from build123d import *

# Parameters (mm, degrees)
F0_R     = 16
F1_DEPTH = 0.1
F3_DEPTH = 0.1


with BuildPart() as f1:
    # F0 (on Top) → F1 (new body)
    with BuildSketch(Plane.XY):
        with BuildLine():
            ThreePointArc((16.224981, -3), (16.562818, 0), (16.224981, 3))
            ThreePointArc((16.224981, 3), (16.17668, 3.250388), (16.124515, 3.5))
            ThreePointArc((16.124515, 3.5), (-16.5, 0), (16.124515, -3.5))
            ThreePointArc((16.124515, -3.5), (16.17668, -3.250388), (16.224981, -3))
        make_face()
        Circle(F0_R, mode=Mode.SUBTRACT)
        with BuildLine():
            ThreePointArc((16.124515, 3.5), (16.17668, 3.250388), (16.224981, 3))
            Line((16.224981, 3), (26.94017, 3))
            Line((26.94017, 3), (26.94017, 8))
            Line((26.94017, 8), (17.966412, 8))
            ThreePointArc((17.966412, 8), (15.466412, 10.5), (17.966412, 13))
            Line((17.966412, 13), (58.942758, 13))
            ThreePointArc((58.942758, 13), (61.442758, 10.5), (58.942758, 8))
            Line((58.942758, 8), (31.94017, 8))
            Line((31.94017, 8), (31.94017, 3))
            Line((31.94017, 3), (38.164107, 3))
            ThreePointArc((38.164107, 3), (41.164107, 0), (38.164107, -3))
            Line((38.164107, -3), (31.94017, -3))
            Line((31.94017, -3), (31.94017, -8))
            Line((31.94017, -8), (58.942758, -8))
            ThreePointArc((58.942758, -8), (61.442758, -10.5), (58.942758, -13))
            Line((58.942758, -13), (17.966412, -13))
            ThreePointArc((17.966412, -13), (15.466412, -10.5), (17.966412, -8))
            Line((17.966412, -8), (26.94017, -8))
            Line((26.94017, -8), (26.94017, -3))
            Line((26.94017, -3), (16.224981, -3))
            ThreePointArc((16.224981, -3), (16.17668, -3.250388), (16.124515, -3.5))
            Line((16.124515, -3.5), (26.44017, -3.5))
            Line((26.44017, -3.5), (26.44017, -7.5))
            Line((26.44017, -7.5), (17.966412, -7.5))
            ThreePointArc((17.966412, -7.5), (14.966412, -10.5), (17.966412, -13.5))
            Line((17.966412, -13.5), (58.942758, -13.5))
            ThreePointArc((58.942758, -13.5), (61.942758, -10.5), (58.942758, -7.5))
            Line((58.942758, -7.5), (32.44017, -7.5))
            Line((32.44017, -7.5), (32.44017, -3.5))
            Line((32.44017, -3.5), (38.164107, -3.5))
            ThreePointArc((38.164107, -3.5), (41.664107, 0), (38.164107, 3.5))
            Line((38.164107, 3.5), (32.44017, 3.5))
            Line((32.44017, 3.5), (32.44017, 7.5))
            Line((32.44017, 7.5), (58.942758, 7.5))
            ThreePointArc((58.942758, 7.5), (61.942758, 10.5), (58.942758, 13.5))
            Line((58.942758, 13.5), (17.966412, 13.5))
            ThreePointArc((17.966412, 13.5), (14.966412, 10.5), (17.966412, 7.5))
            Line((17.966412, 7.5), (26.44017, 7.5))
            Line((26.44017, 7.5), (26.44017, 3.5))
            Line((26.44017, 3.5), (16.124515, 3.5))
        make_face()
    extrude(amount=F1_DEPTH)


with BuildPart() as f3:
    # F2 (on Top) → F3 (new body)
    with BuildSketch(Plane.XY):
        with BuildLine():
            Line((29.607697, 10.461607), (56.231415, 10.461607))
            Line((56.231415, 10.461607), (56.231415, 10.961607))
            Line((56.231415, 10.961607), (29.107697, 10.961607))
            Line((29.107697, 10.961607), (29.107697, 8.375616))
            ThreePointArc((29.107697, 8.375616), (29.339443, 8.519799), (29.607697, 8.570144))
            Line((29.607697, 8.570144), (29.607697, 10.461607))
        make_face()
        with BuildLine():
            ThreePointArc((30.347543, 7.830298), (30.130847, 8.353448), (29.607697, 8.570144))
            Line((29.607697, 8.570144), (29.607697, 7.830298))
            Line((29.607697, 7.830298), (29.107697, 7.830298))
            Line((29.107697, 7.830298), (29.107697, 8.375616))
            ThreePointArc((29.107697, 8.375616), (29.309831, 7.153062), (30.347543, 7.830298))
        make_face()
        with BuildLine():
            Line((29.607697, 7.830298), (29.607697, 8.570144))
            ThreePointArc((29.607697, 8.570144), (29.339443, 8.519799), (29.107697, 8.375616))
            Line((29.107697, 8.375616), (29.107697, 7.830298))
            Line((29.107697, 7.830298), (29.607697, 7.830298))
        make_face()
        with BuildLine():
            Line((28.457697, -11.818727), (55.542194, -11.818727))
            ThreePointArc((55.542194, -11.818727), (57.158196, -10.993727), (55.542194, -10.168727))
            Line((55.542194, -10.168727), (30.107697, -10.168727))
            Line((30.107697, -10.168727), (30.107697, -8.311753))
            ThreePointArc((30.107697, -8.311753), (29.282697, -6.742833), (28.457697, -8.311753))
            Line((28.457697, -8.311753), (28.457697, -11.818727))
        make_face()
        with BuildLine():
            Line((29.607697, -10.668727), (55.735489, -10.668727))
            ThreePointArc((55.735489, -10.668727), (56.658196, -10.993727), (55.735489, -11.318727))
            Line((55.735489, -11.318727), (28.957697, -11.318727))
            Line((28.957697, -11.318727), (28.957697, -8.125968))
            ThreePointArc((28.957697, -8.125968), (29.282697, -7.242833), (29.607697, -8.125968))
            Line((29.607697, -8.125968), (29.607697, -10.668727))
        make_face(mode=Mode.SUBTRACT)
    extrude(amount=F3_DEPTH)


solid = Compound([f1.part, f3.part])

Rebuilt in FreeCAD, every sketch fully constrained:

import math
import FreeCAD as App
import Part
import Sketcher
from FreeCAD import Vector

doc = App.newDocument("Part")
params = doc.addObject("Spreadsheet::Sheet", "Params")
for row, (alias, value) in enumerate([
    ("sketch1_diameter", "32 mm"),
    ("sketch1_radius", "3 mm"),
    ("sketch1_radius2", "16.5 mm"),
    ("sketch1_radius3", "3.5 mm"),
    ("sketch1_radius4", "2.5 mm"),
    ("pad1_length", "0.1 mm"),
    ("sketch2_height", "0.5 mm"),
    ("pad2_length", "0.1 mm"),
], start=1):
    params.set(f"A{row}", alias)
    params.set(f"B{row}", "=" + value)
    params.setAlias(f"B{row}", alias)

body = doc.addObject("PartDesign::Body", "Body")

# Sketch on XY plane
sketch1 = body.newObject("Sketcher::SketchObject", "Sketch")
sketch1.AttachmentSupport = (doc.getObject("XY_Plane"), [""])
sketch1.MapMode = "FlatFace"
sketch1.addGeometry(Part.ArcOfCircle(Part.Circle(Vector(0, 0, 0), Vector(0, 0, 1), 16.5), math.radians(12.24669), math.radians(347.75331)), False)
sketch1.addGeometry(Part.LineSegment(Vector(16.124515, -3.5, 0), Vector(26.44017, -3.5, 0)), False)
sketch1.addGeometry(Part.LineSegment(Vector(26.44017, -3.5, 0), Vector(26.44017, -7.5, 0)), False)
sketch1.addGeometry(Part.LineSegment(Vector(26.44017, -7.5, 0), Vector(17.966412, -7.5, 0)), False)
sketch1.addGeometry(Part.ArcOfCircle(Part.Circle(Vector(17.966412, -10.5, 0), Vector(0, 0, 1), 3), math.radians(90), math.radians(270)), False)
sketch1.addGeometry(Part.LineSegment(Vector(17.966412, -13.5, 0), Vector(58.942758, -13.5, 0)), False)
sketch1.addGeometry(Part.ArcOfCircle(Part.Circle(Vector(58.942758, -10.5, 0), Vector(0, 0, 1), 3), math.radians(-90), math.radians(90)), False)
sketch1.addGeometry(Part.LineSegment(Vector(58.942758, -7.5, 0), Vector(32.44017, -7.5, 0)), False)
sketch1.addGeometry(Part.LineSegment(Vector(32.44017, -7.5, 0), Vector(32.44017, -3.5, 0)), False)
sketch1.addGeometry(Part.LineSegment(Vector(32.44017, -3.5, 0), Vector(38.164107, -3.5, 0)), False)
sketch1.addGeometry(Part.ArcOfCircle(Part.Circle(Vector(38.164107, 0, 0), Vector(0, 0, 1), 3.5), math.radians(-90), math.radians(90)), False)
sketch1.addGeometry(Part.LineSegment(Vector(38.164107, 3.5, 0), Vector(32.44017, 3.5, 0)), False)
sketch1.addGeometry(Part.LineSegment(Vector(32.44017, 3.5, 0), Vector(32.44017, 7.5, 0)), False)
sketch1.addGeometry(Part.LineSegment(Vector(32.44017, 7.5, 0), Vector(58.942758, 7.5, 0)), False)
sketch1.addGeometry(Part.ArcOfCircle(Part.Circle(Vector(58.942758, 10.5, 0), Vector(0, 0, 1), 3), math.radians(-90), math.radians(90)), False)
sketch1.addGeometry(Part.LineSegment(Vector(58.942758, 13.5, 0), Vector(17.966412, 13.5, 0)), False)
sketch1.addGeometry(Part.ArcOfCircle(Part.Circle(Vector(17.966412, 10.5, 0), Vector(0, 0, 1), 3), math.radians(90), math.radians(270)), False)
sketch1.addGeometry(Part.LineSegment(Vector(17.966412, 7.5, 0), Vector(26.44017, 7.5, 0)), False)
sketch1.addGeometry(Part.LineSegment(Vector(26.44017, 7.5, 0), Vector(26.44017, 3.5, 0)), False)
sketch1.addGeometry(Part.LineSegment(Vector(26.44017, 3.5, 0), Vector(16.124515, 3.5, 0)), False)
sketch1.addGeometry(Part.ArcOfCircle(Part.Circle(Vector(3.073866, 0, 0), Vector(0, 0, 1), 13.488952), math.radians(-12.850285), math.radians(12.850285)), False)
sketch1.addGeometry(Part.LineSegment(Vector(16.224981, 3, 0), Vector(26.94017, 3, 0)), False)
sketch1.addGeometry(Part.LineSegment(Vector(26.94017, 3, 0), Vector(26.94017, 8, 0)), False)
sketch1.addGeometry(Part.LineSegment(Vector(26.94017, 8, 0), Vector(17.966412, 8, 0)), False)
sketch1.addGeometry(Part.ArcOfCircle(Part.Circle(Vector(17.966412, 10.5, 0), Vector(0, 0, 1), 2.5), math.radians(90), math.radians(270)), False)
sketch1.addGeometry(Part.LineSegment(Vector(17.966412, 13, 0), Vector(58.942758, 13, 0)), False)
sketch1.addGeometry(Part.ArcOfCircle(Part.Circle(Vector(58.942758, 10.5, 0), Vector(0, 0, 1), 2.5), math.radians(-90), math.radians(90)), False)
sketch1.addGeometry(Part.LineSegment(Vector(58.942758, 8, 0), Vector(31.94017, 8, 0)), False)
sketch1.addGeometry(Part.LineSegment(Vector(31.94017, 8, 0), Vector(31.94017, 3, 0)), False)
sketch1.addGeometry(Part.LineSegment(Vector(31.94017, 3, 0), Vector(38.164107, 3, 0)), False)
sketch1.addGeometry(Part.ArcOfCircle(Part.Circle(Vector(38.164107, 0, 0), Vector(0, 0, 1), 3), math.radians(-90), math.radians(90)), False)
sketch1.addGeometry(Part.LineSegment(Vector(38.164107, -3, 0), Vector(31.94017, -3, 0)), False)
sketch1.addGeometry(Part.LineSegment(Vector(31.94017, -3, 0), Vector(31.94017, -8, 0)), False)
sketch1.addGeometry(Part.LineSegment(Vector(31.94017, -8, 0), Vector(58.942758, -8, 0)), False)
sketch1.addGeometry(Part.ArcOfCircle(Part.Circle(Vector(58.942758, -10.5, 0), Vector(0, 0, 1), 2.5), math.radians(-90), math.radians(90)), False)
sketch1.addGeometry(Part.LineSegment(Vector(58.942758, -13, 0), Vector(17.966412, -13, 0)), False)
sketch1.addGeometry(Part.ArcOfCircle(Part.Circle(Vector(17.966412, -10.5, 0), Vector(0, 0, 1), 2.5), math.radians(90), math.radians(270)), False)
sketch1.addGeometry(Part.LineSegment(Vector(17.966412, -8, 0), Vector(26.94017, -8, 0)), False)
sketch1.addGeometry(Part.LineSegment(Vector(26.94017, -8, 0), Vector(26.94017, -3, 0)), False)
sketch1.addGeometry(Part.LineSegment(Vector(26.94017, -3, 0), Vector(16.224981, -3, 0)), False)
sketch1.addGeometry(Part.Circle(Vector(0, 0, 0), Vector(0, 0, 1), 16), False)
sketch1.addConstraint(Sketcher.Constraint("Coincident", 0, 2, 1, 1))
sketch1.addConstraint(Sketcher.Constraint("Coincident", 1, 2, 2, 1))
sketch1.addConstraint(Sketcher.Constraint("Coincident", 2, 2, 3, 1))
sketch1.addConstraint(Sketcher.Constraint("Tangent", 3, 2, 4, 1))
sketch1.addConstraint(Sketcher.Constraint("Tangent", 4, 2, 5, 1))
sketch1.addConstraint(Sketcher.Constraint("Tangent", 5, 2, 6, 1))
sketch1.addConstraint(Sketcher.Constraint("Tangent", 6, 2, 7, 1))
sketch1.addConstraint(Sketcher.Constraint("Coincident", 7, 2, 8, 1))
sketch1.addConstraint(Sketcher.Constraint("Coincident", 8, 2, 9, 1))
sketch1.addConstraint(Sketcher.Constraint("Tangent", 9, 2, 10, 1))
sketch1.addConstraint(Sketcher.Constraint("Tangent", 10, 2, 11, 1))
sketch1.addConstraint(Sketcher.Constraint("Coincident", 11, 2, 12, 1))
sketch1.addConstraint(Sketcher.Constraint("Coincident", 12, 2, 13, 1))
sketch1.addConstraint(Sketcher.Constraint("Tangent", 13, 2, 14, 1))
sketch1.addConstraint(Sketcher.Constraint("Tangent", 14, 2, 15, 1))
sketch1.addConstraint(Sketcher.Constraint("Tangent", 15, 2, 16, 1))
sketch1.addConstraint(Sketcher.Constraint("Tangent", 16, 2, 17, 1))
sketch1.addConstraint(Sketcher.Constraint("Coincident", 17, 2, 18, 1))
sketch1.addConstraint(Sketcher.Constraint("Coincident", 18, 2, 19, 1))
sketch1.addConstraint(Sketcher.Constraint("Coincident", 19, 2, 0, 1))
sketch1.addConstraint(Sketcher.Constraint("Coincident", 20, 2, 21, 1))
sketch1.addConstraint(Sketcher.Constraint("Coincident", 21, 2, 22, 1))
sketch1.addConstraint(Sketcher.Constraint("Coincident", 22, 2, 23, 1))
sketch1.addConstraint(Sketcher.Constraint("Tangent", 23, 2, 24, 2))
sketch1.addConstraint(Sketcher.Constraint("Tangent", 24, 1, 25, 1))
sketch1.addConstraint(Sketcher.Constraint("Tangent", 25, 2, 26, 2))
sketch1.addConstraint(Sketcher.Constraint("Tangent", 26, 1, 27, 1))
sketch1.addConstraint(Sketcher.Constraint("Coincident", 27, 2, 28, 1))
sketch1.addConstraint(Sketcher.Constraint("Coincident", 28, 2, 29, 1))
sketch1.addConstraint(Sketcher.Constraint("Tangent", 29, 2, 30, 2))
sketch1.addConstraint(Sketcher.Constraint("Tangent", 30, 1, 31, 1))
sketch1.addConstraint(Sketcher.Constraint("Coincident", 31, 2, 32, 1))
sketch1.addConstraint(Sketcher.Constraint("Coincident", 32, 2, 33, 1))
sketch1.addConstraint(Sketcher.Constraint("Tangent", 33, 2, 34, 2))
sketch1.addConstraint(Sketcher.Constraint("Tangent", 34, 1, 35, 1))
sketch1.addConstraint(Sketcher.Constraint("Tangent", 35, 2, 36, 2))
sketch1.addConstraint(Sketcher.Constraint("Tangent", 36, 1, 37, 1))
sketch1.addConstraint(Sketcher.Constraint("Coincident", 37, 2, 38, 1))
sketch1.addConstraint(Sketcher.Constraint("Coincident", 38, 2, 39, 1))
sketch1.addConstraint(Sketcher.Constraint("Coincident", 39, 2, 20, 1))
sketch1.addConstraint(Sketcher.Constraint("Horizontal", 1))
sketch1.addConstraint(Sketcher.Constraint("Vertical", 2))
sketch1.addConstraint(Sketcher.Constraint("Horizontal", 3))
sketch1.addConstraint(Sketcher.Constraint("Horizontal", 5))
sketch1.addConstraint(Sketcher.Constraint("Horizontal", 7))
sketch1.addConstraint(Sketcher.Constraint("Vertical", 8))
sketch1.addConstraint(Sketcher.Constraint("Horizontal", 9))
sketch1.addConstraint(Sketcher.Constraint("Horizontal", 11))
sketch1.addConstraint(Sketcher.Constraint("Vertical", 12))
sketch1.addConstraint(Sketcher.Constraint("Horizontal", 13))
sketch1.addConstraint(Sketcher.Constraint("Horizontal", 15))
sketch1.addConstraint(Sketcher.Constraint("Horizontal", 17))
sketch1.addConstraint(Sketcher.Constraint("Vertical", 18))
sketch1.addConstraint(Sketcher.Constraint("Horizontal", 19))
sketch1.addConstraint(Sketcher.Constraint("Horizontal", 21))
sketch1.addConstraint(Sketcher.Constraint("Vertical", 22))
sketch1.addConstraint(Sketcher.Constraint("Horizontal", 23))
sketch1.addConstraint(Sketcher.Constraint("Horizontal", 25))
sketch1.addConstraint(Sketcher.Constraint("Horizontal", 27))
sketch1.addConstraint(Sketcher.Constraint("Vertical", 28))
sketch1.addConstraint(Sketcher.Constraint("Horizontal", 29))
sketch1.addConstraint(Sketcher.Constraint("Horizontal", 31))
sketch1.addConstraint(Sketcher.Constraint("Vertical", 32))
sketch1.addConstraint(Sketcher.Constraint("Horizontal", 33))
sketch1.addConstraint(Sketcher.Constraint("Horizontal", 35))
sketch1.addConstraint(Sketcher.Constraint("Horizontal", 37))
sketch1.addConstraint(Sketcher.Constraint("Vertical", 38))
sketch1.addConstraint(Sketcher.Constraint("Horizontal", 39))
sketch1.addConstraint(Sketcher.Constraint("Coincident", 0, 3, -1, 1))
sketch1.addConstraint(Sketcher.Constraint("Coincident", 40, 3, -1, 1))
sketch1.addConstraint(Sketcher.Constraint("Coincident", 24, 3, 16, 3))
sketch1.addConstraint(Sketcher.Constraint("Coincident", 26, 3, 14, 3))
sketch1.addConstraint(Sketcher.Constraint("Coincident", 30, 3, 10, 3))
sketch1.addConstraint(Sketcher.Constraint("Coincident", 34, 3, 6, 3))
sketch1.addConstraint(Sketcher.Constraint("Coincident", 36, 3, 4, 3))
sketch1.addConstraint(Sketcher.Constraint("Equal", 4, 6))
sketch1.addConstraint(Sketcher.Constraint("Equal", 6, 14))
sketch1.addConstraint(Sketcher.Constraint("Equal", 14, 16))
sketch1.addConstraint(Sketcher.Constraint("Equal", 16, 30))
sketch1.addConstraint(Sketcher.Constraint("Equal", 26, 34))
sketch1.addConstraint(Sketcher.Constraint("Symmetric", 6, 3, 14, 3, -1))
sketch1.addConstraint(Sketcher.Constraint("Symmetric", 8, 2, 11, 2, -1))
sketch1.addConstraint(Sketcher.Constraint("Symmetric", 1, 2, 18, 2, -1))
sketch1.addConstraint(Sketcher.Constraint("Symmetric", 21, 2, 38, 2, -1))
sketch1.addConstraint(Sketcher.Constraint("PointOnObject", 20, 3, -1))
sketch1.addConstraint(Sketcher.Constraint("Horizontal", 1, 2, 8, 2))
sketch1.addConstraint(Sketcher.Constraint("Horizontal", 21, 2, 28, 2))
sketch1.addConstraint(Sketcher.Constraint("Vertical", 4, 3, 16, 3))
sketch1.addConstraint(Sketcher.Constraint("Vertical", 28, 2, 31, 2))
sketch1.addConstraint(Sketcher.Constraint("Diameter", 40, 32.0))
sketch1.addConstraint(Sketcher.Constraint("Radius", 4, 3.0))
sketch1.addConstraint(Sketcher.Constraint("Radius", 0, 16.5))
sketch1.addConstraint(Sketcher.Constraint("Radius", 10, 3.5))
sketch1.addConstraint(Sketcher.Constraint("Radius", 24, 2.5))
sketch1.addConstraint(Sketcher.Constraint("DistanceY", 2, 2, 2, 1, 4.0))
sketch1.addConstraint(Sketcher.Constraint("DistanceX", 2, 2, 7, 2, 6.0))
sketch1.addConstraint(Sketcher.Constraint("DistanceX", 22, 2, 27, 2, 5.0))
sketch1.addConstraint(Sketcher.Constraint("DistanceX", 18, 2, 21, 2, 0.5))
sketch1.addConstraint(Sketcher.Constraint("Radius", 20, 13.488952))
sketch1.addConstraint(Sketcher.Constraint("DistanceX", 21, 1, 21, 2, 10.715189))
sketch1.addConstraint(Sketcher.Constraint("DistanceX", 1, 1, 1, 2, 10.315655))
sketch1.addConstraint(Sketcher.Constraint("DistanceX", 3, 2, 3, 1, 8.473758))
sketch1.addConstraint(Sketcher.Constraint("DistanceX", 5, 1, 5, 2, 40.976346))
sketch1.addConstraint(Sketcher.Constraint("DistanceX", 9, 1, 9, 2, 5.723937))
sketch1.setExpression("Constraints[89]", "Params.sketch1_diameter")
sketch1.setExpression("Constraints[90]", "Params.sketch1_radius")
sketch1.setExpression("Constraints[91]", "Params.sketch1_radius2")
sketch1.setExpression("Constraints[92]", "Params.sketch1_radius3")
sketch1.setExpression("Constraints[93]", "Params.sketch1_radius4")
pad1 = body.newObject("PartDesign::Pad", "Pad")
pad1.Profile = sketch1
pad1.setExpression("Length", "Params.pad1_length")
body2 = doc.addObject("PartDesign::Body", "Body001")
body2.AllowCompound = True

# Sketch on XY plane
sketch2 = body2.newObject("Sketcher::SketchObject", "Sketch001")
sketch2.AttachmentSupport = (doc.getObject("XY_Plane001"), [""])
sketch2.MapMode = "FlatFace"
sketch2.addGeometry(Part.LineSegment(Vector(29.607697, 10.461607, 0), Vector(56.231415, 10.461607, 0)), False)
sketch2.addGeometry(Part.LineSegment(Vector(56.231415, 10.461607, 0), Vector(56.231415, 10.961607, 0)), False)
sketch2.addGeometry(Part.LineSegment(Vector(56.231415, 10.961607, 0), Vector(29.107697, 10.961607, 0)), False)
sketch2.addGeometry(Part.LineSegment(Vector(29.107697, 10.961607, 0), Vector(29.107697, 8.375616, 0)), False)
sketch2.addGeometry(Part.ArcOfCircle(Part.Circle(Vector(29.607697, 7.830298, 0), Vector(0, 0, 1), 0.739846), math.radians(132.517568), math.radians(360.000033)), False)
sketch2.addGeometry(Part.ArcOfCircle(Part.Circle(Vector(29.607697, 7.830298, 0), Vector(0, 0, 1), 0.739846), math.radians(0.000033), math.radians(89.999967)), False)
sketch2.addGeometry(Part.LineSegment(Vector(29.607697, 8.570144, 0), Vector(29.607697, 10.461607, 0)), False)
sketch2.addGeometry(Part.LineSegment(Vector(28.457697, -11.818727, 0), Vector(55.542194, -11.818727, 0)), False)
sketch2.addGeometry(Part.ArcOfCircle(Part.Circle(Vector(56.139606, -10.993727, 0), Vector(0, 0, 1), 1.01859), math.radians(-125.909634), math.radians(125.909634)), False)
sketch2.addGeometry(Part.LineSegment(Vector(55.542194, -10.168727, 0), Vector(30.107697, -10.168727, 0)), False)
sketch2.addGeometry(Part.LineSegment(Vector(30.107697, -10.168727, 0), Vector(30.107697, -8.311753, 0)), False)
sketch2.addGeometry(Part.ArcOfCircle(Part.Circle(Vector(29.282697, -7.744202, 0), Vector(0, 0, 1), 1.001369), math.radians(-34.525673), math.radians(214.525673)), False)
sketch2.addGeometry(Part.LineSegment(Vector(28.457697, -8.311753, 0), Vector(28.457697, -11.818727, 0)), False)
sketch2.addGeometry(Part.LineSegment(Vector(29.607697, -8.125968, 0), Vector(29.607697, -10.668727, 0)), False)
sketch2.addGeometry(Part.LineSegment(Vector(29.607697, -10.668727, 0), Vector(55.735489, -10.668727, 0)), False)
sketch2.addGeometry(Part.ArcOfCircle(Part.Circle(Vector(56.139606, -10.993727, 0), Vector(0, 0, 1), 0.51859), math.radians(-141.192976), math.radians(141.192976)), False)
sketch2.addGeometry(Part.LineSegment(Vector(55.735489, -11.318727, 0), Vector(28.957697, -11.318727, 0)), False)
sketch2.addGeometry(Part.LineSegment(Vector(28.957697, -11.318727, 0), Vector(28.957697, -8.125968, 0)), False)
sketch2.addGeometry(Part.ArcOfCircle(Part.Circle(Vector(29.282697, -7.744202, 0), Vector(0, 0, 1), 0.501369), math.radians(-49.592047), math.radians(229.592047)), False)
sketch2.addConstraint(Sketcher.Constraint("Coincident", 0, 2, 1, 1))
sketch2.addConstraint(Sketcher.Constraint("Coincident", 1, 2, 2, 1))
sketch2.addConstraint(Sketcher.Constraint("Coincident", 2, 2, 3, 1))
sketch2.addConstraint(Sketcher.Constraint("Coincident", 3, 2, 4, 1))
sketch2.addConstraint(Sketcher.Constraint("Tangent", 4, 2, 5, 1))
sketch2.addConstraint(Sketcher.Constraint("Coincident", 5, 2, 6, 1))
sketch2.addConstraint(Sketcher.Constraint("Coincident", 6, 2, 0, 1))
sketch2.addConstraint(Sketcher.Constraint("Coincident", 7, 2, 8, 1))
sketch2.addConstraint(Sketcher.Constraint("Coincident", 8, 2, 9, 1))
sketch2.addConstraint(Sketcher.Constraint("Coincident", 9, 2, 10, 1))
sketch2.addConstraint(Sketcher.Constraint("Coincident", 10, 2, 11, 1))
sketch2.addConstraint(Sketcher.Constraint("Coincident", 11, 2, 12, 1))
sketch2.addConstraint(Sketcher.Constraint("Coincident", 12, 2, 7, 1))
sketch2.addConstraint(Sketcher.Constraint("Coincident", 13, 2, 14, 1))
sketch2.addConstraint(Sketcher.Constraint("Coincident", 14, 2, 15, 2))
sketch2.addConstraint(Sketcher.Constraint("Coincident", 15, 1, 16, 1))
sketch2.addConstraint(Sketcher.Constraint("Coincident", 16, 2, 17, 1))
sketch2.addConstraint(Sketcher.Constraint("Coincident", 17, 2, 18, 2))
sketch2.addConstraint(Sketcher.Constraint("Coincident", 18, 1, 13, 1))
sketch2.addConstraint(Sketcher.Constraint("Horizontal", 0))
sketch2.addConstraint(Sketcher.Constraint("Vertical", 1))
sketch2.addConstraint(Sketcher.Constraint("Horizontal", 2))
sketch2.addConstraint(Sketcher.Constraint("Vertical", 3))
sketch2.addConstraint(Sketcher.Constraint("Vertical", 6))
sketch2.addConstraint(Sketcher.Constraint("Horizontal", 7))
sketch2.addConstraint(Sketcher.Constraint("Horizontal", 9))
sketch2.addConstraint(Sketcher.Constraint("Vertical", 10))
sketch2.addConstraint(Sketcher.Constraint("Vertical", 12))
sketch2.addConstraint(Sketcher.Constraint("Vertical", 13))
sketch2.addConstraint(Sketcher.Constraint("Horizontal", 14))
sketch2.addConstraint(Sketcher.Constraint("Horizontal", 16))
sketch2.addConstraint(Sketcher.Constraint("Vertical", 17))
sketch2.addConstraint(Sketcher.Constraint("Coincident", 15, 3, 8, 3))
sketch2.addConstraint(Sketcher.Constraint("Coincident", 18, 3, 11, 3))
sketch2.addConstraint(Sketcher.Constraint("Equal", 4, 5))
sketch2.addConstraint(Sketcher.Constraint("Horizontal", 5, 3, 4, 2))
sketch2.addConstraint(Sketcher.Constraint("Horizontal", 10, 2, 11, 2))
sketch2.addConstraint(Sketcher.Constraint("Horizontal", 17, 2, 18, 1))
sketch2.addConstraint(Sketcher.Constraint("Vertical", 4, 3, 5, 2))
sketch2.addConstraint(Sketcher.Constraint("Vertical", 7, 2, 8, 2))
sketch2.addConstraint(Sketcher.Constraint("Vertical", 6, 2, 13, 2))
sketch2.addConstraint(Sketcher.Constraint("Vertical", 14, 2, 15, 1))
sketch2.addConstraint(Sketcher.Constraint("DistanceY", 1, 1, 1, 2, 0.5))
sketch2.addConstraint(Sketcher.Constraint("DistanceX", 2, 2, 5, 3, 0.5))
sketch2.addConstraint(Sketcher.Constraint("DistanceX", 4, 3, 9, 2, 0.5))
sketch2.addConstraint(Sketcher.Constraint("DistanceY", 13, 2, 9, 2, 0.5))
sketch2.addConstraint(Sketcher.Constraint("Radius", 8, 1.01859))
sketch2.addConstraint(Sketcher.Constraint("Radius", 11, 1.001369))
sketch2.addConstraint(Sketcher.Constraint("Radius", 15, 0.51859))
sketch2.addConstraint(Sketcher.Constraint("Radius", 18, 0.501369))
sketch2.addConstraint(Sketcher.Constraint("DistanceY", 7, 2, 8, 2, 1.65))
sketch2.addConstraint(Sketcher.Constraint("DistanceX", 11, 2, 10, 2, 1.65))
sketch2.addConstraint(Sketcher.Constraint("Radius", 4, 0.739846))
sketch2.addConstraint(Sketcher.Constraint("DistanceX", 14, 1, 14, 2, 26.127792))
sketch2.addConstraint(Sketcher.Constraint("DistanceY", 3, 2, 3, 1, 2.585991))
sketch2.addConstraint(Sketcher.Constraint("DistanceY", 13, 2, 13, 1, 2.542759))
sketch2.addConstraint(Sketcher.Constraint("DistanceY", 11, 3, -1, 1, 7.744202))
sketch2.addConstraint(Sketcher.Constraint("DistanceY", 11, 3, 5, 3, 15.574499))
sketch2.addConstraint(Sketcher.Constraint("DistanceX", 0, 1, 0, 2, 26.623718))
sketch2.addConstraint(Sketcher.Constraint("DistanceX", -1, 1, 14, 2, 55.735489))
sketch2.setExpression("Constraints[42]", "Params.sketch2_height")
pad2 = body2.newObject("PartDesign::Pad", "Pad001")
pad2.Profile = sketch2
pad2.setExpression("Length", "Params.pad2_length")

doc.recompute()
